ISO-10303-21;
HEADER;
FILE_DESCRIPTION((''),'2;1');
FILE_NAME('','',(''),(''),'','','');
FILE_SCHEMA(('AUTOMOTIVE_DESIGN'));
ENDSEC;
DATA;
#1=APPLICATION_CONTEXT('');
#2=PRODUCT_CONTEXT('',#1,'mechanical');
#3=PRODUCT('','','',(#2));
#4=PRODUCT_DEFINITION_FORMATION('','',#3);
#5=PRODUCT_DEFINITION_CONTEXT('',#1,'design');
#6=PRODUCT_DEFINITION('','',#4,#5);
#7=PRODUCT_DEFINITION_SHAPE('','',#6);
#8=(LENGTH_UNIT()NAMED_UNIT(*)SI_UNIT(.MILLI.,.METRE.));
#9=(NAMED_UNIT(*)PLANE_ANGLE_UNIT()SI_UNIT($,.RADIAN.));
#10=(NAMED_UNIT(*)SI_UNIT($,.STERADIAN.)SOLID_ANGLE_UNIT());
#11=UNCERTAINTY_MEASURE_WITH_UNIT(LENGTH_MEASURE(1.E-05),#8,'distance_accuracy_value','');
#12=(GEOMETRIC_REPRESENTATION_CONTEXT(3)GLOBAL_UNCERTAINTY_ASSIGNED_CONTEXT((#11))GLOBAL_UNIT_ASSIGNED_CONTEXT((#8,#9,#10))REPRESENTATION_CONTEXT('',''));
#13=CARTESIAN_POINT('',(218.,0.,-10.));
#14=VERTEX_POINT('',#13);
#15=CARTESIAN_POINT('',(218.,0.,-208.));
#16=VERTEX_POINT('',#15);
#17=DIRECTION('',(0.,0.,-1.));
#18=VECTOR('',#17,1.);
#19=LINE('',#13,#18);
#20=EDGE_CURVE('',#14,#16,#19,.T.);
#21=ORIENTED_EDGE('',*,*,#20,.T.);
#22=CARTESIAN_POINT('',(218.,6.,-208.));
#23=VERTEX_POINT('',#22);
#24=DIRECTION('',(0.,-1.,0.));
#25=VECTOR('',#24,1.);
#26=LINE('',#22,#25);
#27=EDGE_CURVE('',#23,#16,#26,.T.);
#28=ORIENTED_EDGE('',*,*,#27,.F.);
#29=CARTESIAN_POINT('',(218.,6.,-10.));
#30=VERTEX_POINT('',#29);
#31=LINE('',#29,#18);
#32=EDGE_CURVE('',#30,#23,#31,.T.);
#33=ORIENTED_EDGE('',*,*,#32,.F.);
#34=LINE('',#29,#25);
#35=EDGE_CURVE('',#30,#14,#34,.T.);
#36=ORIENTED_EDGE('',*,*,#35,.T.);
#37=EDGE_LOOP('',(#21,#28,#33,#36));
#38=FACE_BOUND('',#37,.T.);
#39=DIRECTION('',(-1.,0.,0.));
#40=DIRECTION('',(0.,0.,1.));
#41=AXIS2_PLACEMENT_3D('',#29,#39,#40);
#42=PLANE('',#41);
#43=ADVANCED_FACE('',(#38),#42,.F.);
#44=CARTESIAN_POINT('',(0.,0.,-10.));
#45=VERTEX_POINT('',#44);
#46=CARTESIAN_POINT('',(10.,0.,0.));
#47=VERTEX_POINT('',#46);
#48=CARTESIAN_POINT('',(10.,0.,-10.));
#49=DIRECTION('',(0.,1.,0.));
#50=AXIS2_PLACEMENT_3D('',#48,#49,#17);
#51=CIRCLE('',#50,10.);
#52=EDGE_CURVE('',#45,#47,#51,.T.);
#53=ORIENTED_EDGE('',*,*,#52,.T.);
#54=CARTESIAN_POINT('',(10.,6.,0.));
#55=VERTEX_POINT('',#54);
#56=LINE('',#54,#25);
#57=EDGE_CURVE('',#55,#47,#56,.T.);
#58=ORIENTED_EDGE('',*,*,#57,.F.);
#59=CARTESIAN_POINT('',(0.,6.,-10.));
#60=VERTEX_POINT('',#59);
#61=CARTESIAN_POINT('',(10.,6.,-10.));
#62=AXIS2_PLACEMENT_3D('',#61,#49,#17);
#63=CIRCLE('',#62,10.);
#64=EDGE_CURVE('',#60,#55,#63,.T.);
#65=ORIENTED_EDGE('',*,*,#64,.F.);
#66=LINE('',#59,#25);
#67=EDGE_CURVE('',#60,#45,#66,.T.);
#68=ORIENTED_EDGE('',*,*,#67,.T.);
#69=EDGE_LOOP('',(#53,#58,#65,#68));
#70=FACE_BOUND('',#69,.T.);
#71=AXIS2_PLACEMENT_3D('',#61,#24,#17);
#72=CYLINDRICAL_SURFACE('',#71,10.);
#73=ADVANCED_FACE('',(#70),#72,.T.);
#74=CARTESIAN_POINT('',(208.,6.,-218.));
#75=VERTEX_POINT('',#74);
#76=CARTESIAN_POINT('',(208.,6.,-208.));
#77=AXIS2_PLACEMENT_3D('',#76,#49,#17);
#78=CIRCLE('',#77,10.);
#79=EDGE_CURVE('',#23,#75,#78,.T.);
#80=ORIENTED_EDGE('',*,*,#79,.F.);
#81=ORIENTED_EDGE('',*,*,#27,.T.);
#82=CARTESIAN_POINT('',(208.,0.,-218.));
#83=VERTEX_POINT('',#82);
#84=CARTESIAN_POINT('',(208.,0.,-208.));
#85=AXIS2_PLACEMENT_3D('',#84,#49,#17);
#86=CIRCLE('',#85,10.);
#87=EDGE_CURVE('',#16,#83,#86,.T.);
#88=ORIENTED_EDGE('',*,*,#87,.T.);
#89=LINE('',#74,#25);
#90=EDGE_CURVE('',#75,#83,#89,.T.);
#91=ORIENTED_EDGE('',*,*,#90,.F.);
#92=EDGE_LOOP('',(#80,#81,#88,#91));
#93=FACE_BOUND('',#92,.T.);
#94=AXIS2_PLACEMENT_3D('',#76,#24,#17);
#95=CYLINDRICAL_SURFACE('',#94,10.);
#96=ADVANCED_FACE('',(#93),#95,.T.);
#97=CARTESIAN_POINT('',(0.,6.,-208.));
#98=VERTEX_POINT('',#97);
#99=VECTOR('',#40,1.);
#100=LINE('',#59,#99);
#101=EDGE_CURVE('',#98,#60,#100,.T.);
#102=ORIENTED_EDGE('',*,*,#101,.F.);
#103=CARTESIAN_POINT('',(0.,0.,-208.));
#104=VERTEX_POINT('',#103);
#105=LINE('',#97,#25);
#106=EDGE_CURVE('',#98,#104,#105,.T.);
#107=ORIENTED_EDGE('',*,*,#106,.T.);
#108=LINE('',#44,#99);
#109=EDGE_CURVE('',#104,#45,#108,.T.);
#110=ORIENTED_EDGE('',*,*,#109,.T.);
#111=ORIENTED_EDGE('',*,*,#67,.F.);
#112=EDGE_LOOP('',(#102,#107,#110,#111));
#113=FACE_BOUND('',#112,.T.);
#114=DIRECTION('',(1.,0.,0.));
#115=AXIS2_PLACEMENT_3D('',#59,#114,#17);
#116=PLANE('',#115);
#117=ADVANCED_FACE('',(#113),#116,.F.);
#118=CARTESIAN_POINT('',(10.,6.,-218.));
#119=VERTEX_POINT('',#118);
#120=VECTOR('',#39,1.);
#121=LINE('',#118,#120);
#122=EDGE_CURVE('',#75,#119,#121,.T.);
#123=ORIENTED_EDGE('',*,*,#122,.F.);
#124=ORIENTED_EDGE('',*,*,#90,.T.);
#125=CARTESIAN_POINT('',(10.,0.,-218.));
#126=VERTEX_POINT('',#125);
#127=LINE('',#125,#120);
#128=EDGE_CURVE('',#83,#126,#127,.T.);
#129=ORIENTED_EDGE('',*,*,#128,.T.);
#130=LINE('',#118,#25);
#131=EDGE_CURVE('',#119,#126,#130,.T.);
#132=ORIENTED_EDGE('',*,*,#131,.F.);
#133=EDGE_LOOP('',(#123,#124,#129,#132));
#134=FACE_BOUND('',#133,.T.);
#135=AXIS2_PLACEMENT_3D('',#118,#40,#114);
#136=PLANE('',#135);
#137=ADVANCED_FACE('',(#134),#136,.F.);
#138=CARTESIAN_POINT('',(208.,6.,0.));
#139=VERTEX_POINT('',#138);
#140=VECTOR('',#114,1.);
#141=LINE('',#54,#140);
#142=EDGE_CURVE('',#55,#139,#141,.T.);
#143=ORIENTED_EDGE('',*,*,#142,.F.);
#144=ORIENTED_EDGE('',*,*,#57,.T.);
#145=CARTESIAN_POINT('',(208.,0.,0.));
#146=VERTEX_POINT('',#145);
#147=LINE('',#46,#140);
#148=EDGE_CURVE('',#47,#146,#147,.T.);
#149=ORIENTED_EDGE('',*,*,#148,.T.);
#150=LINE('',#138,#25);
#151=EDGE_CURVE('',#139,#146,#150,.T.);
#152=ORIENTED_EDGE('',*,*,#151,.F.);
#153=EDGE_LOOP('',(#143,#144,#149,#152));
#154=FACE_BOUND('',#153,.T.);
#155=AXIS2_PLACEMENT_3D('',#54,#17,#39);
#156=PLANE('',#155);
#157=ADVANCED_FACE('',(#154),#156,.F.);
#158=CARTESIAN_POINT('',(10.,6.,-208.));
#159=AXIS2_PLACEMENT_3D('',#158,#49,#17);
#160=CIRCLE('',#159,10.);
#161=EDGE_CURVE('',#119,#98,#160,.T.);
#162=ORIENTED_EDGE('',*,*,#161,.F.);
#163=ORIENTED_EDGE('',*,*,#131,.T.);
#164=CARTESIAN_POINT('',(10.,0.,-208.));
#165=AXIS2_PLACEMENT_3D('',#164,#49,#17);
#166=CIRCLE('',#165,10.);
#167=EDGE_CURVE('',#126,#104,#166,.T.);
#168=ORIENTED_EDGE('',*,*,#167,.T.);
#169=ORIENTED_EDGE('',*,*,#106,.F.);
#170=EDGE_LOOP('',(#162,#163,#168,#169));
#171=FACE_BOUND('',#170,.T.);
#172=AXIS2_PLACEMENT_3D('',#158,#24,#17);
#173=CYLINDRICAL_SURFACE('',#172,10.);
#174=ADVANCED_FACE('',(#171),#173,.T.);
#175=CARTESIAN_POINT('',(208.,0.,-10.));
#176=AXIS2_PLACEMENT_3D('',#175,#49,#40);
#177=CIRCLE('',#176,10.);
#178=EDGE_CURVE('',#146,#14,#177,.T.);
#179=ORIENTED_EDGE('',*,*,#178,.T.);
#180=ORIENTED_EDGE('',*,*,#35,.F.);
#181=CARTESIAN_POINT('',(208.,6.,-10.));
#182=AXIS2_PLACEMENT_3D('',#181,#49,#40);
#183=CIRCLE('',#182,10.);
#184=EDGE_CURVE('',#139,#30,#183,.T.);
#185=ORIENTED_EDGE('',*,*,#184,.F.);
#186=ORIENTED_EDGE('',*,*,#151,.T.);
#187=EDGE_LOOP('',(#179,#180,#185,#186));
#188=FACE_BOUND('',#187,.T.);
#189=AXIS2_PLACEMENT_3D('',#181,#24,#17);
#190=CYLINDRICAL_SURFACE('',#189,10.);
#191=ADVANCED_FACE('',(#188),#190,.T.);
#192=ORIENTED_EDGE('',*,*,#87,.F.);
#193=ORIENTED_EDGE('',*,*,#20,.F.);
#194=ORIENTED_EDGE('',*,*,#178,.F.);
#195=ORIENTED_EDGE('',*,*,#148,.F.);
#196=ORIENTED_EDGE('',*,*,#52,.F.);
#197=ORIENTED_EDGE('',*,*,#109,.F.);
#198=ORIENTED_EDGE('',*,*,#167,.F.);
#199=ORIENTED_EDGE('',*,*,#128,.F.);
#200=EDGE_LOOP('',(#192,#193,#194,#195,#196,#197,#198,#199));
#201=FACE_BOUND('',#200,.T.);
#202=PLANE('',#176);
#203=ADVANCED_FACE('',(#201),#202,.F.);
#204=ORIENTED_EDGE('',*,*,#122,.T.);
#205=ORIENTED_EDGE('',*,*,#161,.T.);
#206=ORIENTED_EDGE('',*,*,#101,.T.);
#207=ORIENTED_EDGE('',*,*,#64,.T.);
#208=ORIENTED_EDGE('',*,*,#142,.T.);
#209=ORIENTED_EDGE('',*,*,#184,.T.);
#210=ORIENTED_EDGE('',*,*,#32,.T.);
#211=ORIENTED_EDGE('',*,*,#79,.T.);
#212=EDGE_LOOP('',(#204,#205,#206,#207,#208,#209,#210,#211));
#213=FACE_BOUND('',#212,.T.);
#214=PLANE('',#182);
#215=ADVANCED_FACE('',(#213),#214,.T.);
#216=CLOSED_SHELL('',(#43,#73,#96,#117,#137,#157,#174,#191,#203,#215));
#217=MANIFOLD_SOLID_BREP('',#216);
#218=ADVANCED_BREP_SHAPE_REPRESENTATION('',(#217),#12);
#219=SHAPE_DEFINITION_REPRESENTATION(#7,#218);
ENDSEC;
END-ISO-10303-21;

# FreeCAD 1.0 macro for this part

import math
import FreeCAD as App
import Part
import Sketcher

V = App.Vector

doc = App.newDocument("Part")
body = doc.addObject("PartDesign::Body", "Body")

# Sketch on XZ plane
sketch1 = body.newObject("Sketcher::SketchObject", "Sketch")
sketch1.AttachmentSupport = (doc.getObject("XZ_Plane"), [""])
sketch1.MapMode = "FlatFace"
sketch1.addGeometry(Part.LineSegment(V(10, 0, 0), V(208, 0, 0)), False)
sketch1.addGeometry(Part.ArcOfCircle(Part.Circle(V(208, -10, 0), V(0, 0, 1), 10), math.radians(0), math.radians(90)), False)
sketch1.addGeometry(Part.LineSegment(V(218, -10, 0), V(218, -208, 0)), False)
sketch1.addGeometry(Part.ArcOfCircle(Part.Circle(V(208, -208, 0), V(0, 0, 1), 10), math.radians(-90), math.radians(0)), False)
sketch1.addGeometry(Part.LineSegment(V(208, -218, 0), V(10, -218, 0)), False)
sketch1.addGeometry(Part.ArcOfCircle(Part.Circle(V(10, -208, 0), V(0, 0, 1), 10), math.radians(180), math.radians(270)), False)
sketch1.addGeometry(Part.LineSegment(V(0, -208, 0), V(0, -10, 0)), False)
sketch1.addGeometry(Part.ArcOfCircle(Part.Circle(V(10, -10, 0), V(0, 0, 1), 10), math.radians(90), math.radians(180)), False)
sketch1.addConstraint(Sketcher.Constraint("Tangent", 0, 2, 1, 2))
sketch1.addConstraint(Sketcher.Constraint("Tangent", 1, 1, 2, 1))
sketch1.addConstraint(Sketcher.Constraint("Tangent", 2, 2, 3, 2))
sketch1.addConstraint(Sketcher.Constraint("Tangent", 3, 1, 4, 1))
sketch1.addConstraint(Sketcher.Constraint("Tangent", 4, 2, 5, 2))
sketch1.addConstraint(Sketcher.Constraint("Tangent", 5, 1, 6, 1))
sketch1.addConstraint(Sketcher.Constraint("Tangent", 6, 2, 7, 2))
sketch1.addConstraint(Sketcher.Constraint("Tangent", 7, 1, 0, 1))
sketch1.addConstraint(Sketcher.Constraint("Horizontal", 0))
sketch1.addConstraint(Sketcher.Constraint("Vertical", 2))
sketch1.addConstraint(Sketcher.Constraint("Horizontal", 4))
sketch1.addConstraint(Sketcher.Constraint("Vertical", 6))
sketch1.addConstraint(Sketcher.Constraint("Equal", 1, 3))
sketch1.addConstraint(Sketcher.Constraint("Equal", 3, 5))
sketch1.addConstraint(Sketcher.Constraint("Equal", 5, 7))
sketch1.addConstraint(Sketcher.Constraint("PointOnObject", 0, 2, -1))
sketch1.addConstraint(Sketcher.Constraint("PointOnObject", 5, 1, -2))
sketch1.addConstraint(Sketcher.Constraint("Equal", 4, 2))
sketch1.addConstraint(Sketcher.Constraint("Radius", 1, 10.0))
sketch1.addConstraint(Sketcher.Constraint("DistanceX", 0, 1, 0, 2, 198.0))
pad1 = body.newObject("PartDesign::Pad", "Pad")
pad1.Profile = sketch1
pad1.Length = 6
pad1.Reversed = True

doc.recompute()
